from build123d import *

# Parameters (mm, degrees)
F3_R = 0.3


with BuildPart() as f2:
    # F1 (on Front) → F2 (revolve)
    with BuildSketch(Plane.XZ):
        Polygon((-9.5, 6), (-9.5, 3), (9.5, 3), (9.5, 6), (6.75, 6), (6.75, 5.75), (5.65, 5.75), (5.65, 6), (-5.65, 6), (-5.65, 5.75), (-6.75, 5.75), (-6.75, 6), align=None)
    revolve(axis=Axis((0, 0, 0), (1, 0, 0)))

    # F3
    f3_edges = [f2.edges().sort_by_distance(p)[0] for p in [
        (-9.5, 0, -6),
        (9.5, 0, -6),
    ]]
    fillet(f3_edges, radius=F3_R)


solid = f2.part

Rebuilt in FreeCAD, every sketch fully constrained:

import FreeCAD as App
import Part
import Sketcher
from FreeCAD import Vector
Q = App.Units.Quantity


def edges_at(feature, points):
    """Names of the edges that pass closest to the given points."""
    edges = feature.Shape.Edges
    near = lambda p: min(range(len(edges)), key=lambda i: edges[i].distToShape(Part.Vertex(*p))[0])
    return sorted({f"Edge{near(p) + 1}" for p in points})


def add_polygon(sketch, points):
    """Adds a closed chain of lines whose ends are joined by coincident constraints."""
    first, n = sketch.GeometryCount, len(points)
    for a, b in zip(points, points[1:] + points[:1]):
        sketch.addGeometry(Part.LineSegment(App.Vector(*a, 0), App.Vector(*b, 0)), False)
    for i in range(n):
        sketch.addConstraint(Sketcher.Constraint("Coincident", first + i, 2, first + (i + 1) % n, 1))

doc = App.newDocument("Part")
params = doc.addObject("Spreadsheet::Sheet", "Params")
for row, (alias, value) in enumerate([
    ("sketch1_width", "19 mm"),
    ("sketch1_height", "3 mm"),
    ("sketch1_width2", "1.1 mm"),
    ("sketch1_width3", "11.3 mm"),
    ("sketch1_height2", "0.25 mm"),
    ("revolution_angle", "360 deg"),
    ("fillet_radius", "0.3 mm"),
], start=1):
    params.set(f"A{row}", alias)
    params.set(f"B{row}", "=" + value)
    params.setAlias(f"B{row}", alias)

body = doc.addObject("PartDesign::Body", "Body")

sketch1 = doc.addObject("Sketcher::SketchObject", "Sketch")
body.addObject(sketch1)
sketch1.AttachmentSupport = (doc.XZ_Plane, [""])
sketch1.MapMode = "FlatFace"
add_polygon(sketch1, [(-9.5, 6), (-9.5, 3), (9.5, 3), (9.5, 6), (6.75, 6), (6.75, 5.75), (5.65, 5.75), (5.65, 6), (-5.65, 6), (-5.65, 5.75), (-6.75, 5.75), (-6.75, 6)])
sketch1.addConstraint(Sketcher.Constraint("Vertical", 0))
sketch1.addConstraint(Sketcher.Constraint("Horizontal", 1))
sketch1.addConstraint(Sketcher.Constraint("Vertical", 2))
sketch1.addConstraint(Sketcher.Constraint("Horizontal", 3))
sketch1.addConstraint(Sketcher.Constraint("Vertical", 4))
sketch1.addConstraint(Sketcher.Constraint("Horizontal", 5))
sketch1.addConstraint(Sketcher.Constraint("Vertical", 6))
sketch1.addConstraint(Sketcher.Constraint("Horizontal", 7))
sketch1.addConstraint(Sketcher.Constraint("Vertical", 8))
sketch1.addConstraint(Sketcher.Constraint("Horizontal", 9))
sketch1.addConstraint(Sketcher.Constraint("Vertical", 10))
sketch1.addConstraint(Sketcher.Constraint("Horizontal", 11))
sketch1.addConstraint(Sketcher.Constraint("Symmetric", 5, 2, 8, 2, -2))
sketch1.addConstraint(Sketcher.Constraint("Symmetric", 3, 2, 10, 2, -2))
sketch1.addConstraint(Sketcher.Constraint("Horizontal", 3, 2, 6, 2))
sketch1.addConstraint(Sketcher.Constraint("Equal", 3, 11))
sketch1.addConstraint(Sketcher.Constraint("DistanceX", 1, 1, 1, 2, Q("19 mm")))
sketch1.addConstraint(Sketcher.Constraint("DistanceY", 0, 2, 0, 1, Q("3 mm")))
sketch1.addConstraint(Sketcher.Constraint("DistanceX", 5, 2, 5, 1, Q("1.1 mm")))
sketch1.addConstraint(Sketcher.Constraint("DistanceX", 7, 2, 7, 1, Q("11.3 mm")))
sketch1.addConstraint(Sketcher.Constraint("DistanceY", -1, 1, 0, 2, Q("3 mm")))
sketch1.addConstraint(Sketcher.Constraint("DistanceY", 4, 2, 4, 1, Q("0.25 mm")))
sketch1.setExpression("Constraints[28]", "Params.sketch1_width")
sketch1.setExpression("Constraints[29]", "Params.sketch1_height")
sketch1.setExpression("Constraints[30]", "Params.sketch1_width2")
sketch1.setExpression("Constraints[31]", "Params.sketch1_width3")
sketch1.setExpression("Constraints[33]", "Params.sketch1_height2")
revolution = doc.addObject("PartDesign::Revolution", "Revolution")
body.addObject(revolution)
revolution.Profile = sketch1
revolution.ReferenceAxis = (sketch1, ["H_Axis"])
revolution.setExpression("Angle", "Params.revolution_angle")
doc.recompute()

fillet = doc.addObject("PartDesign::Fillet", "Fillet")
body.addObject(fillet)
fillet.Base = (revolution, edges_at(revolution, [(-9.5, 0, -6), (9.5, 0, -6)]))
fillet.setExpression("Radius", "Params.fillet_radius")

doc.recompute()
